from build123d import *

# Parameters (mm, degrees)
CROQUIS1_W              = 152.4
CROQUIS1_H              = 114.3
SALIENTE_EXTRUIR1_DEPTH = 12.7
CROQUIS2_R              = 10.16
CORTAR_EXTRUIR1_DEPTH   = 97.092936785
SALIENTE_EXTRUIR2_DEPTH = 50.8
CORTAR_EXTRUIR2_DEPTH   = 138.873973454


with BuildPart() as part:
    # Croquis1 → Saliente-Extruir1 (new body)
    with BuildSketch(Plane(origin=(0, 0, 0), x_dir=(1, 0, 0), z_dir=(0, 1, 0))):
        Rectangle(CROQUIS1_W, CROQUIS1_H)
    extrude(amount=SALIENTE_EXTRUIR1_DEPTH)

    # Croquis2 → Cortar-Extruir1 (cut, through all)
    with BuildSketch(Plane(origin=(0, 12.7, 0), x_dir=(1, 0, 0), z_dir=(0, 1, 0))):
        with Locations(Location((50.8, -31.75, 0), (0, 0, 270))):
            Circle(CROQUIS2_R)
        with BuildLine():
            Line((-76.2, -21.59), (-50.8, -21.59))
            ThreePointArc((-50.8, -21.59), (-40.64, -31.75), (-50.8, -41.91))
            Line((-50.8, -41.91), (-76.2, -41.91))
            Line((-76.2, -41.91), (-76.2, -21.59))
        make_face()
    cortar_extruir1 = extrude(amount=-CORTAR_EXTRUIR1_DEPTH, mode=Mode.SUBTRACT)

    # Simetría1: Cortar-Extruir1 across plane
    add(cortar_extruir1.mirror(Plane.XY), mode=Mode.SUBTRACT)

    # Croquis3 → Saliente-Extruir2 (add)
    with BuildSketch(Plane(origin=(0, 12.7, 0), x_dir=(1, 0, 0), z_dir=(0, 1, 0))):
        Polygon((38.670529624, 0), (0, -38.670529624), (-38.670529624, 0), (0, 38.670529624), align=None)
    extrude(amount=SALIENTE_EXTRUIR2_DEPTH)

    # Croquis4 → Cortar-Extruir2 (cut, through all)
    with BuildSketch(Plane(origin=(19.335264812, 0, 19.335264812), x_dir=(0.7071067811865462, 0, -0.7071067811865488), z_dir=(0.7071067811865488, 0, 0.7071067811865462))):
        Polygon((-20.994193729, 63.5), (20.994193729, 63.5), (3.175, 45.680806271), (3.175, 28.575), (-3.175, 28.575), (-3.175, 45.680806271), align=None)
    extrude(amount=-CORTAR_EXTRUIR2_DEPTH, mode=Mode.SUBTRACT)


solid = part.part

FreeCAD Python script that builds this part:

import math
import FreeCAD as App
import Part
import Sketcher
Q = App.Units.Quantity

doc = App.newDocument("Part")
body = doc.addObject("PartDesign::Body", "Body")

sketch1 = body.newObject("Sketcher::SketchObject", "Sketch")
sketch1.AttachmentSupport = (doc.getObject("XZ_Plane"), [""])
sketch1.MapMode = "FlatFace"
sketch1.addGeometry(Part.LineSegment(App.Vector(-76, -57, 0), App.Vector(-76, 57, 0)), False)
sketch1.addGeometry(Part.LineSegment(App.Vector(-76, 57, 0), App.Vector(76, 57, 0)), False)
sketch1.addGeometry(Part.LineSegment(App.Vector(76, 57, 0), App.Vector(76, -57, 0)), False)
sketch1.addGeometry(Part.LineSegment(App.Vector(76, -57, 0), App.Vector(-76, -57, 0)), False)
sketch1.addConstraint(Sketcher.Constraint("Coincident", 0, 2, 1, 1))
sketch1.addConstraint(Sketcher.Constraint("Coincident", 1, 2, 2, 1))
sketch1.addConstraint(Sketcher.Constraint("Coincident", 2, 2, 3, 1))
sketch1.addConstraint(Sketcher.Constraint("Coincident", 3, 2, 0, 1))
sketch1.addConstraint(Sketcher.Constraint("Vertical", 0))
sketch1.addConstraint(Sketcher.Constraint("Horizontal", 1))
sketch1.addConstraint(Sketcher.Constraint("Vertical", 2))
sketch1.addConstraint(Sketcher.Constraint("Horizontal", 3))
sketch1.addConstraint(Sketcher.Constraint("Symmetric", 0, 2, 2, 2, -1, 1))
sketch1.addConstraint(Sketcher.Constraint("DistanceX", 1, 1, 1, 2, Q("6 in")))
sketch1.addConstraint(Sketcher.Constraint("DistanceY", 0, 1, 0, 2, Q("4.5 in")))
pad1 = body.newObject("PartDesign::Pad", "Pad")
pad1.Profile = sketch1
pad1.Length = Q("0.5 in")
pad1.Reversed = True

sketch2 = body.newObject("Sketcher::SketchObject", "Sketch001")
sketch2.AttachmentSupport = (doc.getObject("XZ_Plane"), [""])
sketch2.MapMode = "FlatFace"
sketch2.AttachmentOffset = App.Placement(App.Vector(0, 0, -0.5 * 25.4), App.Rotation())
sketch2.addGeometry(Part.Circle(App.Vector(51, 32, 0), App.Vector(0, 0, 1), 10), False)
sketch2.addGeometry(Part.LineSegment(App.Vector(-51, 22, 0), App.Vector(-76, 22, 0)), False)
sketch2.addGeometry(Part.LineSegment(App.Vector(-76, 22, 0), App.Vector(-76, 42, 0)), False)
sketch2.addGeometry(Part.LineSegment(App.Vector(-76, 42, 0), App.Vector(-51, 42, 0)), False)
sketch2.addGeometry(Part.ArcOfCircle(Part.Circle(App.Vector(-51, 32, 0), App.Vector(0, 0, 1), 10), math.radians(-90), math.radians(90)), False)
sketch2.addConstraint(Sketcher.Constraint("Coincident", 1, 2, 2, 1))
sketch2.addConstraint(Sketcher.Constraint("Coincident", 2, 2, 3, 1))
sketch2.addConstraint(Sketcher.Constraint("Tangent", 3, 2, 4, 2))
sketch2.addConstraint(Sketcher.Constraint("Tangent", 4, 1, 1, 1))
sketch2.addConstraint(Sketcher.Constraint("Horizontal", 1))
sketch2.addConstraint(Sketcher.Constraint("Vertical", 2))
sketch2.addConstraint(Sketcher.Constraint("Horizontal", 3))
sketch2.addConstraint(Sketcher.Constraint("Equal", 0, 4))
sketch2.addConstraint(Sketcher.Constraint("Symmetric", 0, 3, 4, 3, -2))
sketch2.addConstraint(Sketcher.Constraint("Diameter", 0, Q("0.8 in")))
sketch2.addConstraint(Sketcher.Constraint("DistanceX", 1, 2, 1, 1, Q("1 in")))
sketch2.addConstraint(Sketcher.Constraint("DistanceX", -1, 1, 0, 3, Q("2 in")))
sketch2.addConstraint(Sketcher.Constraint("DistanceY", -1, 1, 0, 3, Q("1.25 in")))
pocket1 = body.newObject("PartDesign::Pocket", "Pocket")
pocket1.Profile = sketch2
pocket1.Type = "ThroughAll"
pocket1.Reversed = True
doc.recompute()

mirrored = body.newObject("PartDesign::Mirrored", "Mirrored")
mirrored.Originals = [pocket1]
mirrored.MirrorPlane = (doc.getObject("XY_Plane"), [""])
body.Tip = mirrored

sketch3 = body.newObject("Sketcher::SketchObject", "Sketch002")
sketch3.AttachmentSupport = (doc.getObject("XZ_Plane"), [""])
sketch3.MapMode = "FlatFace"
sketch3.AttachmentOffset = App.Placement(App.Vector(0, 0, -0.5 * 25.4), App.Rotation())
sketch3.addGeometry(Part.LineSegment(App.Vector(0, 39, 0), App.Vector(39, 0, 0)), False)
sketch3.addGeometry(Part.LineSegment(App.Vector(39, 0, 0), App.Vector(0, -39, 0)), False)
sketch3.addGeometry(Part.LineSegment(App.Vector(0, -39, 0), App.Vector(-39, 0, 0)), False)
sketch3.addGeometry(Part.LineSegment(App.Vector(-39, 0, 0), App.Vector(0, 39, 0)), False)
sketch3.addConstraint(Sketcher.Constraint("Coincident", 0, 2, 1, 1))
sketch3.addConstraint(Sketcher.Constraint("Coincident", 1, 2, 2, 1))
sketch3.addConstraint(Sketcher.Constraint("Coincident", 2, 2, 3, 1))
sketch3.addConstraint(Sketcher.Constraint("Coincident", 3, 2, 0, 1))
sketch3.addConstraint(Sketcher.Constraint("Symmetric", 0, 2, 2, 2, -1, 1))
sketch3.addConstraint(Sketcher.Constraint("Symmetric", 1, 2, 3, 2, -1, 1))
sketch3.addConstraint(Sketcher.Constraint("PointOnObject", 0, 2, -1))
sketch3.addConstraint(Sketcher.Constraint("PointOnObject", 1, 2, -2))
sketch3.addConstraint(Sketcher.Constraint("Perpendicular", 0, 1))
sketch3.addConstraint(Sketcher.Constraint("DistanceX", -1, 1, 0, 2, Q("38.67053 mm")))
pad2 = body.newObject("PartDesign::Pad", "Pad001")
pad2.Profile = sketch3
pad2.Length = Q("2 in")
pad2.Reversed = True

sketch4 = body.newObject("Sketcher::SketchObject", "Sketch003")
sketch4.Placement = App.Placement(App.Vector(19.335265, 0, 19.335265), App.Rotation(App.Vector(0.707106781, 0, -0.707106781), App.Vector(0, 0.999999999, 0), App.Vector(0.707106781, 0, 0.707106781), "ZXY"))
sketch4.addGeometry(Part.LineSegment(App.Vector(21, 63, 0), App.Vector(-21, 63, 0)), False)
sketch4.addGeometry(Part.LineSegment(App.Vector(-21, 63, 0), App.Vector(-3, 46, 0)), False)
sketch4.addGeometry(Part.LineSegment(App.Vector(-3, 46, 0), App.Vector(-3, 29, 0)), False)
sketch4.addGeometry(Part.LineSegment(App.Vector(-3, 29, 0), App.Vector(3, 29, 0)), False)
sketch4.addGeometry(Part.LineSegment(App.Vector(3, 29, 0), App.Vector(3, 46, 0)), False)
sketch4.addGeometry(Part.LineSegment(App.Vector(3, 46, 0), App.Vector(21, 63, 0)), False)
sketch4.addConstraint(Sketcher.Constraint("Coincident", 0, 2, 1, 1))
sketch4.addConstraint(Sketcher.Constraint("Coincident", 1, 2, 2, 1))
sketch4.addConstraint(Sketcher.Constraint("Coincident", 2, 2, 3, 1))
sketch4.addConstraint(Sketcher.Constraint("Coincident", 3, 2, 4, 1))
sketch4.addConstraint(Sketcher.Constraint("Coincident", 4, 2, 5, 1))
sketch4.addConstraint(Sketcher.Constraint("Coincident", 5, 2, 0, 1))
sketch4.addConstraint(Sketcher.Constraint("Horizontal", 0))
sketch4.addConstraint(Sketcher.Constraint("Vertical", 2))
sketch4.addConstraint(Sketcher.Constraint("Horizontal", 3))
sketch4.addConstraint(Sketcher.Constraint("Vertical", 4))
sketch4.addConstraint(Sketcher.Constraint("Symmetric", 1, 2, 4, 2, -2))
sketch4.addConstraint(Sketcher.Constraint("Perpendicular", 1, 5))
sketch4.addConstraint(Sketcher.Constraint("Equal", 1, 5))
sketch4.addConstraint(Sketcher.Constraint("DistanceX", 3, 1, 3, 2, Q("0.25 in")))
sketch4.addConstraint(Sketcher.Constraint("DistanceY", -1, 1, 0, 2, Q("2.5 in")))
sketch4.addConstraint(Sketcher.Constraint("DistanceY", -1, 1, 2, 2, Q("1.125 in")))
sketch4.addConstraint(Sketcher.Constraint("DistanceX", 0, 2, 0, 1, Q("41.988387 mm")))
pocket2 = body.newObject("PartDesign::Pocket", "Pocket001")
pocket2.Profile = sketch4
pocket2.Type = "ThroughAll"

doc.recompute()
